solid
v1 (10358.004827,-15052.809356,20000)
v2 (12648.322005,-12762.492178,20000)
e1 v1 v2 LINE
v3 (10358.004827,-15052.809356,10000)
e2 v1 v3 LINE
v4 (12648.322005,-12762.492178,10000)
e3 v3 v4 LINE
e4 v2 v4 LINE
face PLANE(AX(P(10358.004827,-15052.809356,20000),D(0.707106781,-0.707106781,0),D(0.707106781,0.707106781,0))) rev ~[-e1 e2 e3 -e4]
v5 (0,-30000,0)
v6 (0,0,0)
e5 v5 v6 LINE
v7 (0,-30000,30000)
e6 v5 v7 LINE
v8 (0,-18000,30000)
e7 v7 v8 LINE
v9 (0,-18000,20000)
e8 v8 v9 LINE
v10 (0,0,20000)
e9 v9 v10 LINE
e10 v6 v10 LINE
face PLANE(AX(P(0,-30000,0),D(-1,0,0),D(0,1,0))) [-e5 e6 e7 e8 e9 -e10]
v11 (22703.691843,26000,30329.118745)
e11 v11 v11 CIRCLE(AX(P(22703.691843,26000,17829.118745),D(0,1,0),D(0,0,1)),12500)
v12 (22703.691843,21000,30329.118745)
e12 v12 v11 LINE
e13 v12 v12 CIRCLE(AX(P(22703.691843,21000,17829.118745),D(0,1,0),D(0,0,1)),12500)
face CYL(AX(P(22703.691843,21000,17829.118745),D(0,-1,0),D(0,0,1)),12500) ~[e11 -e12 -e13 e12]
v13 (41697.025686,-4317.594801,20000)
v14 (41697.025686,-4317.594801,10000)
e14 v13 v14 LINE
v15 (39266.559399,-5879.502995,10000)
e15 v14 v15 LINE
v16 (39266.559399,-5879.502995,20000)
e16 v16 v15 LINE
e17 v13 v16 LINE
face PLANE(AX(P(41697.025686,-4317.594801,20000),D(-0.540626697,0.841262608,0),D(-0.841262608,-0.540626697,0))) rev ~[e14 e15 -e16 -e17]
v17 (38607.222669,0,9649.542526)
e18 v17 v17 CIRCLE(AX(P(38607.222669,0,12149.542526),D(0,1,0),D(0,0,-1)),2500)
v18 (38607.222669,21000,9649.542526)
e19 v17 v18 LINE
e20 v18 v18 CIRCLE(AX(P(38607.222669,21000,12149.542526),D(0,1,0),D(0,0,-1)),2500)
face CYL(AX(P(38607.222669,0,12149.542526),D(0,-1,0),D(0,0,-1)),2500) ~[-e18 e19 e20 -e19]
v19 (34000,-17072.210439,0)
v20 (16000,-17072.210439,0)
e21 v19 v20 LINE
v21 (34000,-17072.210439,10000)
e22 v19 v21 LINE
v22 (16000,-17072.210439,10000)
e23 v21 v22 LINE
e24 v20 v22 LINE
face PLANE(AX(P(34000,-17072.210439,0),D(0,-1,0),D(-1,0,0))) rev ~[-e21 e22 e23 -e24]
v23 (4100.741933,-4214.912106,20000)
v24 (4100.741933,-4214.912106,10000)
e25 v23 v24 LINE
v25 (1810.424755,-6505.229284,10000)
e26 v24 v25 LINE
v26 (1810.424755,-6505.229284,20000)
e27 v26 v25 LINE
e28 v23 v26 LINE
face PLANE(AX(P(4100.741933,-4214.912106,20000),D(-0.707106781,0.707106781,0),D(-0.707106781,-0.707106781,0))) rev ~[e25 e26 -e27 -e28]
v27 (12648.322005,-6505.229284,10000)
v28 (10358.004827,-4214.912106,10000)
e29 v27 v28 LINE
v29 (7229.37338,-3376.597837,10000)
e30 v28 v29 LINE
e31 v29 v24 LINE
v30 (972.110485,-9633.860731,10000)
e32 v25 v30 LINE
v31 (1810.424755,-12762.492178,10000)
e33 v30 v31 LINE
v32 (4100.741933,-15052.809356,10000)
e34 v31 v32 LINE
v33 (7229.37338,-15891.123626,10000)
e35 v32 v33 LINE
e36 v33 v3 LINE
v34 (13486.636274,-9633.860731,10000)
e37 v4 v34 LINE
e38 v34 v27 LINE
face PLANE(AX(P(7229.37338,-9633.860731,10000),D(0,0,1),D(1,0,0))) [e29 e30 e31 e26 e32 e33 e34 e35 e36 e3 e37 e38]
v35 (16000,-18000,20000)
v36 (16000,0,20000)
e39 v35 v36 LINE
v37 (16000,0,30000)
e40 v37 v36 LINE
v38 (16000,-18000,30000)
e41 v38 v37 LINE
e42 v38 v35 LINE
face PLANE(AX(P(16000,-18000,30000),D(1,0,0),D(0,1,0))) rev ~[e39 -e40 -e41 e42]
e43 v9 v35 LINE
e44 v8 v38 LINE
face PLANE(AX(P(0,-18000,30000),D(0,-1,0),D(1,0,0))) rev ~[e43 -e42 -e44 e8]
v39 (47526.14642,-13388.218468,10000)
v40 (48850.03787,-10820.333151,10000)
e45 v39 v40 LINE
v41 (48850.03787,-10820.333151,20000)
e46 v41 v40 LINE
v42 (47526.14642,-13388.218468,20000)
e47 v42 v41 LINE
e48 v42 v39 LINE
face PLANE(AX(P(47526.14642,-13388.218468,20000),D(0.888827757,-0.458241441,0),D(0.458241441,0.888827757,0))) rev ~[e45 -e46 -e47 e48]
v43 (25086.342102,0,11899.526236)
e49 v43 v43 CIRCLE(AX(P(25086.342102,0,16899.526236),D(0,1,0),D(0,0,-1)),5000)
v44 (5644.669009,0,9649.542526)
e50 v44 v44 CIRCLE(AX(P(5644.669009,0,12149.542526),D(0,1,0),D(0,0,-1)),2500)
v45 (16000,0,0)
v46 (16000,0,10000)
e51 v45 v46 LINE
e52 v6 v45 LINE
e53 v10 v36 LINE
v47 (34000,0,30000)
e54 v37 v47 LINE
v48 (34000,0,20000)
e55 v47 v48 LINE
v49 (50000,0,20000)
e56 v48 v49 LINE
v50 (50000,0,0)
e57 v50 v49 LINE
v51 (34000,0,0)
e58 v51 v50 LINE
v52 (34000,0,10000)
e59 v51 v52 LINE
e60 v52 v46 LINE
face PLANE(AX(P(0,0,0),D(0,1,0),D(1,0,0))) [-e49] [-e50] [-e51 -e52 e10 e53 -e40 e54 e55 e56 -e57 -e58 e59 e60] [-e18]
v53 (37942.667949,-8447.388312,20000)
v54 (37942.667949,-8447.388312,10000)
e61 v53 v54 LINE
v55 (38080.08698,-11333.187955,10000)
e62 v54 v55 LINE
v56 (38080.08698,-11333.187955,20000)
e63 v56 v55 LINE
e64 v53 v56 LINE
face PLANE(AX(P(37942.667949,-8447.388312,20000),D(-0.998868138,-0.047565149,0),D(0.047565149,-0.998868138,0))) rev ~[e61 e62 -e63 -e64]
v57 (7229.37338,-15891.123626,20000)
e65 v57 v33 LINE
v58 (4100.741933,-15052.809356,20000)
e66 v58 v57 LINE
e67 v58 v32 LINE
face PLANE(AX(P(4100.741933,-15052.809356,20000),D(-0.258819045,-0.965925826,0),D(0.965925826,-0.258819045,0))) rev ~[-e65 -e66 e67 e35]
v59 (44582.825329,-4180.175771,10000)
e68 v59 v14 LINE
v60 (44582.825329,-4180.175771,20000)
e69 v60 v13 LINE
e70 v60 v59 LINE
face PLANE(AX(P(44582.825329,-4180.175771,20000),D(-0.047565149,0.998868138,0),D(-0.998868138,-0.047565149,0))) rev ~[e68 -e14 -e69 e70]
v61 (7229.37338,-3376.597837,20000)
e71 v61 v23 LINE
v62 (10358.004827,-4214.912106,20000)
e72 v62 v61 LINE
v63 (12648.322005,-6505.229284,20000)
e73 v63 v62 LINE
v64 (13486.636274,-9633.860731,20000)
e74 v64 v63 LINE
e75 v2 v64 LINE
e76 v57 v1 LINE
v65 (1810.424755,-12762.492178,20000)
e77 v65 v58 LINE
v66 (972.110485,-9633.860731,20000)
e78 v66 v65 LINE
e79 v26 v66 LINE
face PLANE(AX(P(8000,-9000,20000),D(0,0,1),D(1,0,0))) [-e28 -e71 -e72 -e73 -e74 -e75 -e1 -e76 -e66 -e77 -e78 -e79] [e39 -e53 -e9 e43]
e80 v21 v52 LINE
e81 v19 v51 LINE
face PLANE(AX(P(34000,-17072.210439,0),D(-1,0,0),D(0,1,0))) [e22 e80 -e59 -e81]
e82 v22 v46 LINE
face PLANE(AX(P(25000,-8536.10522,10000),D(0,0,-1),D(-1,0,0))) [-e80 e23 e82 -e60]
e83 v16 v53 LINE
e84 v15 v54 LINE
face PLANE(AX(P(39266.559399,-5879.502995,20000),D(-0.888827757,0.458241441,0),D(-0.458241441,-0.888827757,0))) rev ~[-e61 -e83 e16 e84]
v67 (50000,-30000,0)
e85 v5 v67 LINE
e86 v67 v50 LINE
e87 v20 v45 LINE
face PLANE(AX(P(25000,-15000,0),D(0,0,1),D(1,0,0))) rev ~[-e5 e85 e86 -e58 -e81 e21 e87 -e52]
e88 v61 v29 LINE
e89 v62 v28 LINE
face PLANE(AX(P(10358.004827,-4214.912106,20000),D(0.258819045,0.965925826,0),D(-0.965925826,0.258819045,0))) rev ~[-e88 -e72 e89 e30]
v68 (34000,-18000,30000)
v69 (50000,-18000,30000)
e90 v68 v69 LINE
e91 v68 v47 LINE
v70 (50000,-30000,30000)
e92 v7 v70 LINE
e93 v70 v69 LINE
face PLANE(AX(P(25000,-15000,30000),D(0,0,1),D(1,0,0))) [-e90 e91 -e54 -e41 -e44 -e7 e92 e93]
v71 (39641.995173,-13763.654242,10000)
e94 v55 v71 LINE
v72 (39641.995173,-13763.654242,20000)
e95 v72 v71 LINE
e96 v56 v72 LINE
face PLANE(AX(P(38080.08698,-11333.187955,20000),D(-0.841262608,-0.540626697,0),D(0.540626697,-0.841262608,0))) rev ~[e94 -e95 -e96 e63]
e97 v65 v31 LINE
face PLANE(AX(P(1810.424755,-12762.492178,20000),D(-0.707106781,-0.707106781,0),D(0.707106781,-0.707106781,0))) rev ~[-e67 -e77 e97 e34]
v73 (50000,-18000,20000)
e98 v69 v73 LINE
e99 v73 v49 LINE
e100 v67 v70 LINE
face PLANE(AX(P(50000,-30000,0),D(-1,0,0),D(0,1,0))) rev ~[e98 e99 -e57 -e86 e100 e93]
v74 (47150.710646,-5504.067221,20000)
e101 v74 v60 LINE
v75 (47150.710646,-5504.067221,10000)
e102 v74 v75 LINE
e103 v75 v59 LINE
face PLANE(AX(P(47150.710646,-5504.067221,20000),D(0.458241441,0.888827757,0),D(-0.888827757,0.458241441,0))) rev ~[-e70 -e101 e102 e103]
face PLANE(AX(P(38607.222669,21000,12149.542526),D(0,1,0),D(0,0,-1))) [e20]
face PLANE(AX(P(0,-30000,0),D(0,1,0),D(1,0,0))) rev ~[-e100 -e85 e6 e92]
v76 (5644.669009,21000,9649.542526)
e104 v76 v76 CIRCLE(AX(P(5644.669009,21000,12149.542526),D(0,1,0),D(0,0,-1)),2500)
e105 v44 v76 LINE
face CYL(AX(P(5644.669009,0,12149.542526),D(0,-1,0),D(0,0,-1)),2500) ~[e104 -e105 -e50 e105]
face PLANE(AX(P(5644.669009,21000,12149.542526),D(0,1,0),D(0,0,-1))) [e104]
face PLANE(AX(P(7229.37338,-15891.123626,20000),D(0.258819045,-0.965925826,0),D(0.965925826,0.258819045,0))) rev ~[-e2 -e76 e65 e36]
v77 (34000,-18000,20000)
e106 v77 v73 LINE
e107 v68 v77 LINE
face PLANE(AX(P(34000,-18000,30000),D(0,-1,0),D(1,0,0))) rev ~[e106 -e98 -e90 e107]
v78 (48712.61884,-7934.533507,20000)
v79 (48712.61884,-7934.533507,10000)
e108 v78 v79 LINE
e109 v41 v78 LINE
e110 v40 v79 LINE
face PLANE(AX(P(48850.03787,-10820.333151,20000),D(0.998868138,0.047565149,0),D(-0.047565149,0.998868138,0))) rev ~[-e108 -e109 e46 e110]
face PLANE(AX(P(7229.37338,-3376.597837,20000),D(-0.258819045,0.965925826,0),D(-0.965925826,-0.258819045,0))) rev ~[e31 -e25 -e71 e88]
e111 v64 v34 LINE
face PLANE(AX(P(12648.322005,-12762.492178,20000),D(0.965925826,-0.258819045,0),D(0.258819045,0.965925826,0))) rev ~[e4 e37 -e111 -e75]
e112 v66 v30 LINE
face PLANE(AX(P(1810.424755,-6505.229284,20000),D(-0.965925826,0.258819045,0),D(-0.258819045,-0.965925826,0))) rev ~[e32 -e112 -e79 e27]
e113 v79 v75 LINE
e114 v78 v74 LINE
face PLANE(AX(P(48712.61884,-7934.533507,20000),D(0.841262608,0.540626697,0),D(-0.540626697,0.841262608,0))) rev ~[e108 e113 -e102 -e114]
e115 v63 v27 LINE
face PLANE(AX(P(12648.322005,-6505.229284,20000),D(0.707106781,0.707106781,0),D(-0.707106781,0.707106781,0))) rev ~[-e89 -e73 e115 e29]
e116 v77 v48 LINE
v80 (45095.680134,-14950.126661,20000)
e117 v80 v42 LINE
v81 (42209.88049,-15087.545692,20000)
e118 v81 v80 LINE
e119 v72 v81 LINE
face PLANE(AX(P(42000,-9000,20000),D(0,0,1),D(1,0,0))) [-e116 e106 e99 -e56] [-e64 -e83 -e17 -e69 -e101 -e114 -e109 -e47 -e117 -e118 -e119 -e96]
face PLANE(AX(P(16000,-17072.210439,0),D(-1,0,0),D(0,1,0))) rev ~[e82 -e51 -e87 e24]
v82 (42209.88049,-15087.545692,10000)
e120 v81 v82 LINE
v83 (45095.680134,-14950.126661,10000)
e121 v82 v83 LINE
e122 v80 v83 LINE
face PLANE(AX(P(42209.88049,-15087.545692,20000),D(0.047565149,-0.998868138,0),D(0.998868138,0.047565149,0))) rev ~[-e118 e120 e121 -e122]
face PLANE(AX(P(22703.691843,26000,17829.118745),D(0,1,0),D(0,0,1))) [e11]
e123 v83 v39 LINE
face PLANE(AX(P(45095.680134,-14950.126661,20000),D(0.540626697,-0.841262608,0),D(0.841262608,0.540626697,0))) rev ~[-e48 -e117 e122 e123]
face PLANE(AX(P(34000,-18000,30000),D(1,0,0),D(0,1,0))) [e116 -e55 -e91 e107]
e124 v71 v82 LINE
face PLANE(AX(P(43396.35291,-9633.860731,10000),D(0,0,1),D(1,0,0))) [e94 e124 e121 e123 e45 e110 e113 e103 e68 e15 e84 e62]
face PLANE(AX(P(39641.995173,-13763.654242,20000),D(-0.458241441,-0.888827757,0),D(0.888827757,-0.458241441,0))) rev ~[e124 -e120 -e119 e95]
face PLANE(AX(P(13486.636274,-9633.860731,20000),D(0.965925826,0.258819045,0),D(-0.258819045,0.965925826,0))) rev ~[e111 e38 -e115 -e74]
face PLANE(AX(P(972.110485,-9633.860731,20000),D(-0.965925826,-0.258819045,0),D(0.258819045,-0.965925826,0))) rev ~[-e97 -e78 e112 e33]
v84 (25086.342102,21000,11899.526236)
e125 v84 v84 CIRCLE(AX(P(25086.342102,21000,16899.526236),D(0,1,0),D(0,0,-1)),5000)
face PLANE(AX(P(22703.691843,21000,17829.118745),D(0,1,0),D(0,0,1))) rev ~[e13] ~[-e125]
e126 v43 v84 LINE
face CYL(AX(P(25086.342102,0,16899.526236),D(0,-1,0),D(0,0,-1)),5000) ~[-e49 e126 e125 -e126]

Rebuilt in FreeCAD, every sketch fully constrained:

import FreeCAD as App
import Part
import Sketcher

V = App.Vector
Q = App.Units.Quantity


def add_polygon(sketch, points):
    """Adds a closed chain of lines whose ends are joined by coincident constraints."""
    first, n = sketch.GeometryCount, len(points)
    for a, b in zip(points, points[1:] + points[:1]):
        sketch.addGeometry(Part.LineSegment(App.Vector(*a, 0), App.Vector(*b, 0)), False)
    for i in range(n):
        sketch.addConstraint(Sketcher.Constraint("Coincident", first + i, 2, first + (i + 1) % n, 1))

doc = App.newDocument("Part")
body = doc.addObject("PartDesign::Body", "Body")

sketch1 = doc.addObject("Sketcher::SketchObject", "Sketch")
body.addObject(sketch1)
sketch1.AttachmentSupport = (doc.XY_Plane, [""])
sketch1.MapMode = "FlatFace"
add_polygon(sketch1, [(0, 0), (0, -30000), (50000, -30000), (50000, 0)])
sketch1.addConstraint(Sketcher.Constraint("Vertical", 0))
sketch1.addConstraint(Sketcher.Constraint("Horizontal", 1))
sketch1.addConstraint(Sketcher.Constraint("Vertical", 2))
sketch1.addConstraint(Sketcher.Constraint("Horizontal", 3))
sketch1.addConstraint(Sketcher.Constraint("Coincident", 3, 2, -1, 1))
sketch1.addConstraint(Sketcher.Constraint("DistanceX", 1, 1, 1, 2, Q("50000 mm")))
sketch1.addConstraint(Sketcher.Constraint("DistanceY", 0, 2, 0, 1, Q("30000 mm")))
pad1 = doc.addObject("PartDesign::Pad", "Pad")
body.addObject(pad1)
pad1.Profile = sketch1
pad1.Length = 30000

sketch2 = doc.addObject("Sketcher::SketchObject", "Sketch001")
body.addObject(sketch2)
sketch2.AttachmentSupport = (doc.XY_Plane, [""])
sketch2.MapMode = "FlatFace"
sketch2.AttachmentOffset = App.Placement(V(0, 0, 30000), App.Rotation())
add_polygon(sketch2, [(0, 0), (0, -18000), (16000, -18000), (16000, 0)])
add_polygon(sketch2, [(34000, 0), (34000, -18000), (50000, -18000), (50000, 0)])
sketch2.addConstraint(Sketcher.Constraint("Vertical", 0))
sketch2.addConstraint(Sketcher.Constraint("Horizontal", 1))
sketch2.addConstraint(Sketcher.Constraint("Vertical", 2))
sketch2.addConstraint(Sketcher.Constraint("Horizontal", 3))
sketch2.addConstraint(Sketcher.Constraint("Vertical", 4))
sketch2.addConstraint(Sketcher.Constraint("Horizontal", 5))
sketch2.addConstraint(Sketcher.Constraint("Vertical", 6))
sketch2.addConstraint(Sketcher.Constraint("Horizontal", 7))
sketch2.addConstraint(Sketcher.Constraint("Coincident", 3, 2, -1, 1))
sketch2.addConstraint(Sketcher.Constraint("PointOnObject", 6, 2, -1))
sketch2.addConstraint(Sketcher.Constraint("Horizontal", 1, 2, 4, 2))
sketch2.addConstraint(Sketcher.Constraint("Equal", 3, 5))
sketch2.addConstraint(Sketcher.Constraint("DistanceX", 1, 1, 1, 2, Q("16000 mm")))
sketch2.addConstraint(Sketcher.Constraint("DistanceY", 0, 2, 0, 1, Q("18000 mm")))
sketch2.addConstraint(Sketcher.Constraint("DistanceX", -1, 1, 4, 2, Q("34000 mm")))
pocket1 = doc.addObject("PartDesign::Pocket", "Pocket")
body.addObject(pocket1)
pocket1.Profile = sketch2
pocket1.Length = 10000

sketch3 = doc.addObject("Sketcher::SketchObject", "Sketch002")
body.addObject(sketch3)
sketch3.AttachmentSupport = (doc.XY_Plane, [""])
sketch3.MapMode = "FlatFace"
add_polygon(sketch3, [(34000, 0), (34000, -17072), (16000, -17072), (16000, 0)])
sketch3.addConstraint(Sketcher.Constraint("Vertical", 0))
sketch3.addConstraint(Sketcher.Constraint("Horizontal", 1))
sketch3.addConstraint(Sketcher.Constraint("Vertical", 2))
sketch3.addConstraint(Sketcher.Constraint("Horizontal", 3))
sketch3.addConstraint(Sketcher.Constraint("PointOnObject", 2, 2, -1))
sketch3.addConstraint(Sketcher.Constraint("DistanceX", 1, 2, 1, 1, Q("18000 mm")))
sketch3.addConstraint(Sketcher.Constraint("DistanceX", -1, 1, 0, 2, Q("34000 mm")))
sketch3.addConstraint(Sketcher.Constraint("DistanceY", 0, 2, 0, 1, Q("17072.210439 mm")))
pocket2 = doc.addObject("PartDesign::Pocket", "Pocket001")
body.addObject(pocket2)
pocket2.Profile = sketch3
pocket2.Length = 10000
pocket2.Reversed = True

sketch4 = doc.addObject("Sketcher::SketchObject", "Sketch003")
body.addObject(sketch4)
sketch4.AttachmentSupport = (doc.XZ_Plane, [""])
sketch4.MapMode = "FlatFace"
sketch4.addGeometry(Part.Circle(V(25086, 16900, 0), V(0, 0, 1), 5000), False)
sketch4.addConstraint(Sketcher.Constraint("Diameter", 0, Q("10000 mm")))
sketch4.addConstraint(Sketcher.Constraint("DistanceX", -1, 1, 0, 3, Q("25086.342102 mm")))
sketch4.addConstraint(Sketcher.Constraint("DistanceY", -1, 1, 0, 3, Q("16899.526236 mm")))
pad2 = doc.addObject("PartDesign::Pad", "Pad001")
body.addObject(pad2)
pad2.Profile = sketch4
pad2.Length = 21000
pad2.Reversed = True

sketch5 = doc.addObject("Sketcher::SketchObject", "Sketch004")
body.addObject(sketch5)
sketch5.AttachmentSupport = (doc.XZ_Plane, [""])
sketch5.MapMode = "FlatFace"
sketch5.AttachmentOffset = App.Placement(V(0, 0, -21000), App.Rotation())
sketch5.addGeometry(Part.Circle(V(22704, 17829, 0), V(0, 0, 1), 12500), False)
sketch5.addConstraint(Sketcher.Constraint("Diameter", 0, Q("25000 mm")))
sketch5.addConstraint(Sketcher.Constraint("DistanceX", -1, 1, 0, 3, Q("22703.691843 mm")))
sketch5.addConstraint(Sketcher.Constraint("DistanceY", -1, 1, 0, 3, Q("17829.118745 mm")))
pad3 = doc.addObject("PartDesign::Pad", "Pad002")
body.addObject(pad3)
pad3.Profile = sketch5
pad3.Length = 5000
pad3.Reversed = True

sketch6 = doc.addObject("Sketcher::SketchObject", "Sketch005")
body.addObject(sketch6)
sketch6.AttachmentSupport = (doc.XY_Plane, [""])
sketch6.MapMode = "FlatFace"
sketch6.AttachmentOffset = App.Placement(V(0, 0, 20000), App.Rotation())
add_polygon(sketch6, [(13487, -9634), (12648, -6505), (10358, -4215), (7229, -3377), (4101, -4215), (1810, -6505), (972, -9634), (1810, -12762), (4101, -15053), (7229, -15891), (10358, -15053), (12648, -12762)])
sketch6.addConstraint(Sketcher.Constraint("Perpendicular", 0, 3))
sketch6.addConstraint(Sketcher.Constraint("Perpendicular", 1, 4))
sketch6.addConstraint(Sketcher.Constraint("Perpendicular", 2, 5))
sketch6.addConstraint(Sketcher.Constraint("Perpendicular", 3, 6))
sketch6.addConstraint(Sketcher.Constraint("Perpendicular", 4, 7))
sketch6.addConstraint(Sketcher.Constraint("Perpendicular", 5, 8))
sketch6.addConstraint(Sketcher.Constraint("Perpendicular", 6, 9))
sketch6.addConstraint(Sketcher.Constraint("Perpendicular", 7, 10))
sketch6.addConstraint(Sketcher.Constraint("Perpendicular", 8, 11))
sketch6.addConstraint(Sketcher.Constraint("Horizontal", 1, 2, 3, 2))
sketch6.addConstraint(Sketcher.Constraint("Horizontal", 0, 2, 4, 2))
sketch6.addConstraint(Sketcher.Constraint("Horizontal", 7, 2, 9, 2))
sketch6.addConstraint(Sketcher.Constraint("Horizontal", 6, 2, 10, 2))
sketch6.addConstraint(Sketcher.Constraint("Horizontal", 5, 2, 11, 2))
sketch6.addConstraint(Sketcher.Constraint("Vertical", 4, 2, 6, 2))
sketch6.addConstraint(Sketcher.Constraint("Vertical", 3, 2, 7, 2))
sketch6.addConstraint(Sketcher.Constraint("Vertical", 2, 2, 8, 2))
sketch6.addConstraint(Sketcher.Constraint("Vertical", 1, 2, 9, 2))
sketch6.addConstraint(Sketcher.Constraint("Equal", 0, 1))
sketch6.addConstraint(Sketcher.Constraint("Equal", 1, 2))
sketch6.addConstraint(Sketcher.Constraint("Angle", 0, Q("105 deg")))
sketch6.addConstraint(Sketcher.Constraint("DistanceX", -1, 1, 2, 2, Q("7229.37338 mm")))
sketch6.addConstraint(Sketcher.Constraint("DistanceY", 5, 2, -1, 1, Q("9633.860731 mm")))
sketch6.addConstraint(Sketcher.Constraint("DistanceY", 6, 2, -1, 1, Q("12762.492178 mm")))
pocket3 = doc.addObject("PartDesign::Pocket", "Pocket002")
body.addObject(pocket3)
pocket3.Profile = sketch6
pocket3.Length = 10000

sketch7 = doc.addObject("Sketcher::SketchObject", "Sketch006")
body.addObject(sketch7)
sketch7.AttachmentSupport = (doc.XY_Plane, [""])
sketch7.MapMode = "FlatFace"
sketch7.AttachmentOffset = App.Placement(V(0, 0, 20000), App.Rotation())
add_polygon(sketch7, [(39267, -5880), (37943, -8447), (38080, -11333), (39642, -13764), (42210, -15088), (45096, -14950), (47526, -13388), (48850, -10820), (48713, -7935), (47151, -5504), (44583, -4180), (41697, -4318)])
sketch7.addConstraint(Sketcher.Constraint("Perpendicular", 0, 3))
sketch7.addConstraint(Sketcher.Constraint("Perpendicular", 1, 4))
sketch7.addConstraint(Sketcher.Constraint("Perpendicular", 2, 5))
sketch7.addConstraint(Sketcher.Constraint("Perpendicular", 3, 6))
sketch7.addConstraint(Sketcher.Constraint("Perpendicular", 4, 7))
sketch7.addConstraint(Sketcher.Constraint("Perpendicular", 5, 8))
sketch7.addConstraint(Sketcher.Constraint("Perpendicular", 6, 9))
sketch7.addConstraint(Sketcher.Constraint("Perpendicular", 7, 10))
sketch7.addConstraint(Sketcher.Constraint("Perpendicular", 8, 11))
sketch7.addConstraint(Sketcher.Constraint("Equal", 0, 1))
sketch7.addConstraint(Sketcher.Constraint("Equal", 1, 2))
sketch7.addConstraint(Sketcher.Constraint("Equal", 2, 3))
sketch7.addConstraint(Sketcher.Constraint("Equal", 3, 4))
sketch7.addConstraint(Sketcher.Constraint("Equal", 4, 5))
sketch7.addConstraint(Sketcher.Constraint("Equal", 5, 6))
sketch7.addConstraint(Sketcher.Constraint("Equal", 6, 7))
sketch7.addConstraint(Sketcher.Constraint("Equal", 7, 8))
sketch7.addConstraint(Sketcher.Constraint("Equal", 8, 9))
sketch7.addConstraint(Sketcher.Constraint("DistanceY", 10, 2, -1, 1, Q("4317.594801 mm")))
sketch7.addConstraint(Sketcher.Constraint("DistanceX", -1, 1, 11, 2, Q("39266.559399 mm")))
sketch7.addConstraint(Sketcher.Constraint("DistanceX", -1, 1, 0, 2, Q("37942.667949 mm")))
sketch7.addConstraint(Sketcher.Constraint("DistanceY", 0, 2, -1, 1, Q("8447.388312 mm")))
sketch7.addConstraint(Sketcher.Constraint("DistanceX", -1, 1, 1, 2, Q("38080.08698 mm")))
sketch7.addConstraint(Sketcher.Constraint("DistanceY", 2, 2, -1, 1, Q("13763.654242 mm")))
pocket4 = doc.addObject("PartDesign::Pocket", "Pocket003")
body.addObject(pocket4)
pocket4.Profile = sketch7
pocket4.Length = 10000

sketch8 = doc.addObject("Sketcher::SketchObject", "Sketch007")
body.addObject(sketch8)
sketch8.AttachmentSupport = (doc.XZ_Plane, [""])
sketch8.MapMode = "FlatFace"
sketch8.addGeometry(Part.Circle(V(38607, 12150, 0), V(0, 0, 1), 2500), False)
sketch8.addGeometry(Part.Circle(V(5645, 12150, 0), V(0, 0, 1), 2500), False)
sketch8.addConstraint(Sketcher.Constraint("Equal", 0, 1))
sketch8.addConstraint(Sketcher.Constraint("Horizontal", 0, 3, 1, 3))
sketch8.addConstraint(Sketcher.Constraint("Diameter", 0, Q("5000 mm")))
sketch8.addConstraint(Sketcher.Constraint("DistanceX", -1, 1, 0, 3, Q("38607.222669 mm")))
sketch8.addConstraint(Sketcher.Constraint("DistanceX", -1, 1, 1, 3, Q("5644.669009 mm")))
sketch8.addConstraint(Sketcher.Constraint("DistanceY", -1, 1, 0, 3, Q("12149.542526 mm")))
pad4 = doc.addObject("PartDesign::Pad", "Pad003")
body.addObject(pad4)
pad4.Profile = sketch8
pad4.Length = 21000
pad4.Reversed = True

doc.recompute()
